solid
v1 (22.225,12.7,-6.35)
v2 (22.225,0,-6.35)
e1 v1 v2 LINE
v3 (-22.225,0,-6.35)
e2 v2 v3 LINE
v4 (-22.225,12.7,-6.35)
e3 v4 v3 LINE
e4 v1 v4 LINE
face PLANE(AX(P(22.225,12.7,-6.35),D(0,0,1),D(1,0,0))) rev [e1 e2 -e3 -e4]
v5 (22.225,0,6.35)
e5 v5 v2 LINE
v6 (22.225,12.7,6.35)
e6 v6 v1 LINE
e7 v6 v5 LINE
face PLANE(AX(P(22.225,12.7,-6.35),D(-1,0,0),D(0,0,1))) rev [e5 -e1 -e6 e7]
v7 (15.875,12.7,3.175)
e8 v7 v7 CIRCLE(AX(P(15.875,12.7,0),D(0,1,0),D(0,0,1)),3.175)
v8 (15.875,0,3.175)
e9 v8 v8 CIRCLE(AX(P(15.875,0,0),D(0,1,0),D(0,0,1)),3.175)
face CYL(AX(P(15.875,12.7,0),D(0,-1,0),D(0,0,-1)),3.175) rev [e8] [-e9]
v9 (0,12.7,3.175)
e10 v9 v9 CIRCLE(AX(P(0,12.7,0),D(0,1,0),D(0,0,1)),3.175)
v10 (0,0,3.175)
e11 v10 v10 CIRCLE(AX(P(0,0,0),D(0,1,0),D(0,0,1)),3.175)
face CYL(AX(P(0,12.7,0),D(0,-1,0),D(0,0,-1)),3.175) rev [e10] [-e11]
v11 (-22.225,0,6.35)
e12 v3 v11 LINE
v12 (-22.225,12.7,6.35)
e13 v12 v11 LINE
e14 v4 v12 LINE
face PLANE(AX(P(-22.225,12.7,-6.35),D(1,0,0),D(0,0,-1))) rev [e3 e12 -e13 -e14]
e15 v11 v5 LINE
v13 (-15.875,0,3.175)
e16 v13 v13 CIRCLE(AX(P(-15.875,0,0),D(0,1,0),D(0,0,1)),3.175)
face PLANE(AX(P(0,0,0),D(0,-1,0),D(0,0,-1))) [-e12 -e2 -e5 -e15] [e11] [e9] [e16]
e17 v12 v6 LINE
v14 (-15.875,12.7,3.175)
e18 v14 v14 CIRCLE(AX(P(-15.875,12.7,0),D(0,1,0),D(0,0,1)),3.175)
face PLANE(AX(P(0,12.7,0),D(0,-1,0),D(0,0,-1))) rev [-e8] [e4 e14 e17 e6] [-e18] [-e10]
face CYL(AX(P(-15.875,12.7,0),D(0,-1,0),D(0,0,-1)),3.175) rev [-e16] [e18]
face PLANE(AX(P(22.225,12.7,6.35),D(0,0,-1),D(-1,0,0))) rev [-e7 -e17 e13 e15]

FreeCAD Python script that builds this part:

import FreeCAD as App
import Part
import Sketcher
Q = App.Units.Quantity

doc = App.newDocument("Part")
body = doc.addObject("PartDesign::Body", "Body")

sketch1 = doc.addObject("Sketcher::SketchObject", "Sketch")
body.addObject(sketch1)
sketch1.AttachmentSupport = (doc.XZ_Plane, [""])
sketch1.MapMode = "FlatFace"
sketch1.addGeometry([
    Part.LineSegment(App.Vector(-22.2, -6.3, 0), App.Vector(-22.2, 6.3, 0)),
    Part.LineSegment(App.Vector(-22.2, 6.3, 0), App.Vector(22.2, 6.3, 0)),
    Part.LineSegment(App.Vector(22.2, 6.3, 0), App.Vector(22.2, -6.3, 0)),
    Part.LineSegment(App.Vector(22.2, -6.3, 0), App.Vector(-22.2, -6.3, 0)),
    Part.Circle(App.Vector(-15.9, 0, 0), App.Vector(0, 0, 1), 3.2),
    Part.Circle(App.Vector(0, 0, 0), App.Vector(0, 0, 1), 3.2),
    Part.Circle(App.Vector(15.9, 0, 0), App.Vector(0, 0, 1), 3.2),
], False)
sketch1.addConstraint([
    Sketcher.Constraint("Coincident", 0, 2, 1, 1),
    Sketcher.Constraint("Coincident", 1, 2, 2, 1),
    Sketcher.Constraint("Coincident", 2, 2, 3, 1),
    Sketcher.Constraint("Coincident", 3, 2, 0, 1),
    Sketcher.Constraint("Vertical", 0),
    Sketcher.Constraint("Horizontal", 1),
    Sketcher.Constraint("Vertical", 2),
    Sketcher.Constraint("Horizontal", 3),
    Sketcher.Constraint("Coincident", 5, 3, -1, 1),
    Sketcher.Constraint("Equal", 4, 5),
    Sketcher.Constraint("Equal", 5, 6),
    Sketcher.Constraint("Symmetric", 4, 3, 6, 3, -1, 1),
    Sketcher.Constraint("Symmetric", 0, 2, 2, 2, -1, 1),
    Sketcher.Constraint("PointOnObject", 4, 3, -1),
    Sketcher.Constraint("Diameter", 4, Q("0.25 in")),
    Sketcher.Constraint("DistanceY", 0, 1, 0, 2, Q("0.5 in")),
    Sketcher.Constraint("DistanceX", 1, 1, 1, 2, Q("1.75 in")),
    Sketcher.Constraint("DistanceX", 0, 2, 6, 3, Q("1.5 in")),
])
pad1 = doc.addObject("PartDesign::Pad", "Pad")
body.addObject(pad1)
pad1.Profile = sketch1
pad1.Length = Q("0.5 in")
pad1.Reversed = True

doc.recompute()
